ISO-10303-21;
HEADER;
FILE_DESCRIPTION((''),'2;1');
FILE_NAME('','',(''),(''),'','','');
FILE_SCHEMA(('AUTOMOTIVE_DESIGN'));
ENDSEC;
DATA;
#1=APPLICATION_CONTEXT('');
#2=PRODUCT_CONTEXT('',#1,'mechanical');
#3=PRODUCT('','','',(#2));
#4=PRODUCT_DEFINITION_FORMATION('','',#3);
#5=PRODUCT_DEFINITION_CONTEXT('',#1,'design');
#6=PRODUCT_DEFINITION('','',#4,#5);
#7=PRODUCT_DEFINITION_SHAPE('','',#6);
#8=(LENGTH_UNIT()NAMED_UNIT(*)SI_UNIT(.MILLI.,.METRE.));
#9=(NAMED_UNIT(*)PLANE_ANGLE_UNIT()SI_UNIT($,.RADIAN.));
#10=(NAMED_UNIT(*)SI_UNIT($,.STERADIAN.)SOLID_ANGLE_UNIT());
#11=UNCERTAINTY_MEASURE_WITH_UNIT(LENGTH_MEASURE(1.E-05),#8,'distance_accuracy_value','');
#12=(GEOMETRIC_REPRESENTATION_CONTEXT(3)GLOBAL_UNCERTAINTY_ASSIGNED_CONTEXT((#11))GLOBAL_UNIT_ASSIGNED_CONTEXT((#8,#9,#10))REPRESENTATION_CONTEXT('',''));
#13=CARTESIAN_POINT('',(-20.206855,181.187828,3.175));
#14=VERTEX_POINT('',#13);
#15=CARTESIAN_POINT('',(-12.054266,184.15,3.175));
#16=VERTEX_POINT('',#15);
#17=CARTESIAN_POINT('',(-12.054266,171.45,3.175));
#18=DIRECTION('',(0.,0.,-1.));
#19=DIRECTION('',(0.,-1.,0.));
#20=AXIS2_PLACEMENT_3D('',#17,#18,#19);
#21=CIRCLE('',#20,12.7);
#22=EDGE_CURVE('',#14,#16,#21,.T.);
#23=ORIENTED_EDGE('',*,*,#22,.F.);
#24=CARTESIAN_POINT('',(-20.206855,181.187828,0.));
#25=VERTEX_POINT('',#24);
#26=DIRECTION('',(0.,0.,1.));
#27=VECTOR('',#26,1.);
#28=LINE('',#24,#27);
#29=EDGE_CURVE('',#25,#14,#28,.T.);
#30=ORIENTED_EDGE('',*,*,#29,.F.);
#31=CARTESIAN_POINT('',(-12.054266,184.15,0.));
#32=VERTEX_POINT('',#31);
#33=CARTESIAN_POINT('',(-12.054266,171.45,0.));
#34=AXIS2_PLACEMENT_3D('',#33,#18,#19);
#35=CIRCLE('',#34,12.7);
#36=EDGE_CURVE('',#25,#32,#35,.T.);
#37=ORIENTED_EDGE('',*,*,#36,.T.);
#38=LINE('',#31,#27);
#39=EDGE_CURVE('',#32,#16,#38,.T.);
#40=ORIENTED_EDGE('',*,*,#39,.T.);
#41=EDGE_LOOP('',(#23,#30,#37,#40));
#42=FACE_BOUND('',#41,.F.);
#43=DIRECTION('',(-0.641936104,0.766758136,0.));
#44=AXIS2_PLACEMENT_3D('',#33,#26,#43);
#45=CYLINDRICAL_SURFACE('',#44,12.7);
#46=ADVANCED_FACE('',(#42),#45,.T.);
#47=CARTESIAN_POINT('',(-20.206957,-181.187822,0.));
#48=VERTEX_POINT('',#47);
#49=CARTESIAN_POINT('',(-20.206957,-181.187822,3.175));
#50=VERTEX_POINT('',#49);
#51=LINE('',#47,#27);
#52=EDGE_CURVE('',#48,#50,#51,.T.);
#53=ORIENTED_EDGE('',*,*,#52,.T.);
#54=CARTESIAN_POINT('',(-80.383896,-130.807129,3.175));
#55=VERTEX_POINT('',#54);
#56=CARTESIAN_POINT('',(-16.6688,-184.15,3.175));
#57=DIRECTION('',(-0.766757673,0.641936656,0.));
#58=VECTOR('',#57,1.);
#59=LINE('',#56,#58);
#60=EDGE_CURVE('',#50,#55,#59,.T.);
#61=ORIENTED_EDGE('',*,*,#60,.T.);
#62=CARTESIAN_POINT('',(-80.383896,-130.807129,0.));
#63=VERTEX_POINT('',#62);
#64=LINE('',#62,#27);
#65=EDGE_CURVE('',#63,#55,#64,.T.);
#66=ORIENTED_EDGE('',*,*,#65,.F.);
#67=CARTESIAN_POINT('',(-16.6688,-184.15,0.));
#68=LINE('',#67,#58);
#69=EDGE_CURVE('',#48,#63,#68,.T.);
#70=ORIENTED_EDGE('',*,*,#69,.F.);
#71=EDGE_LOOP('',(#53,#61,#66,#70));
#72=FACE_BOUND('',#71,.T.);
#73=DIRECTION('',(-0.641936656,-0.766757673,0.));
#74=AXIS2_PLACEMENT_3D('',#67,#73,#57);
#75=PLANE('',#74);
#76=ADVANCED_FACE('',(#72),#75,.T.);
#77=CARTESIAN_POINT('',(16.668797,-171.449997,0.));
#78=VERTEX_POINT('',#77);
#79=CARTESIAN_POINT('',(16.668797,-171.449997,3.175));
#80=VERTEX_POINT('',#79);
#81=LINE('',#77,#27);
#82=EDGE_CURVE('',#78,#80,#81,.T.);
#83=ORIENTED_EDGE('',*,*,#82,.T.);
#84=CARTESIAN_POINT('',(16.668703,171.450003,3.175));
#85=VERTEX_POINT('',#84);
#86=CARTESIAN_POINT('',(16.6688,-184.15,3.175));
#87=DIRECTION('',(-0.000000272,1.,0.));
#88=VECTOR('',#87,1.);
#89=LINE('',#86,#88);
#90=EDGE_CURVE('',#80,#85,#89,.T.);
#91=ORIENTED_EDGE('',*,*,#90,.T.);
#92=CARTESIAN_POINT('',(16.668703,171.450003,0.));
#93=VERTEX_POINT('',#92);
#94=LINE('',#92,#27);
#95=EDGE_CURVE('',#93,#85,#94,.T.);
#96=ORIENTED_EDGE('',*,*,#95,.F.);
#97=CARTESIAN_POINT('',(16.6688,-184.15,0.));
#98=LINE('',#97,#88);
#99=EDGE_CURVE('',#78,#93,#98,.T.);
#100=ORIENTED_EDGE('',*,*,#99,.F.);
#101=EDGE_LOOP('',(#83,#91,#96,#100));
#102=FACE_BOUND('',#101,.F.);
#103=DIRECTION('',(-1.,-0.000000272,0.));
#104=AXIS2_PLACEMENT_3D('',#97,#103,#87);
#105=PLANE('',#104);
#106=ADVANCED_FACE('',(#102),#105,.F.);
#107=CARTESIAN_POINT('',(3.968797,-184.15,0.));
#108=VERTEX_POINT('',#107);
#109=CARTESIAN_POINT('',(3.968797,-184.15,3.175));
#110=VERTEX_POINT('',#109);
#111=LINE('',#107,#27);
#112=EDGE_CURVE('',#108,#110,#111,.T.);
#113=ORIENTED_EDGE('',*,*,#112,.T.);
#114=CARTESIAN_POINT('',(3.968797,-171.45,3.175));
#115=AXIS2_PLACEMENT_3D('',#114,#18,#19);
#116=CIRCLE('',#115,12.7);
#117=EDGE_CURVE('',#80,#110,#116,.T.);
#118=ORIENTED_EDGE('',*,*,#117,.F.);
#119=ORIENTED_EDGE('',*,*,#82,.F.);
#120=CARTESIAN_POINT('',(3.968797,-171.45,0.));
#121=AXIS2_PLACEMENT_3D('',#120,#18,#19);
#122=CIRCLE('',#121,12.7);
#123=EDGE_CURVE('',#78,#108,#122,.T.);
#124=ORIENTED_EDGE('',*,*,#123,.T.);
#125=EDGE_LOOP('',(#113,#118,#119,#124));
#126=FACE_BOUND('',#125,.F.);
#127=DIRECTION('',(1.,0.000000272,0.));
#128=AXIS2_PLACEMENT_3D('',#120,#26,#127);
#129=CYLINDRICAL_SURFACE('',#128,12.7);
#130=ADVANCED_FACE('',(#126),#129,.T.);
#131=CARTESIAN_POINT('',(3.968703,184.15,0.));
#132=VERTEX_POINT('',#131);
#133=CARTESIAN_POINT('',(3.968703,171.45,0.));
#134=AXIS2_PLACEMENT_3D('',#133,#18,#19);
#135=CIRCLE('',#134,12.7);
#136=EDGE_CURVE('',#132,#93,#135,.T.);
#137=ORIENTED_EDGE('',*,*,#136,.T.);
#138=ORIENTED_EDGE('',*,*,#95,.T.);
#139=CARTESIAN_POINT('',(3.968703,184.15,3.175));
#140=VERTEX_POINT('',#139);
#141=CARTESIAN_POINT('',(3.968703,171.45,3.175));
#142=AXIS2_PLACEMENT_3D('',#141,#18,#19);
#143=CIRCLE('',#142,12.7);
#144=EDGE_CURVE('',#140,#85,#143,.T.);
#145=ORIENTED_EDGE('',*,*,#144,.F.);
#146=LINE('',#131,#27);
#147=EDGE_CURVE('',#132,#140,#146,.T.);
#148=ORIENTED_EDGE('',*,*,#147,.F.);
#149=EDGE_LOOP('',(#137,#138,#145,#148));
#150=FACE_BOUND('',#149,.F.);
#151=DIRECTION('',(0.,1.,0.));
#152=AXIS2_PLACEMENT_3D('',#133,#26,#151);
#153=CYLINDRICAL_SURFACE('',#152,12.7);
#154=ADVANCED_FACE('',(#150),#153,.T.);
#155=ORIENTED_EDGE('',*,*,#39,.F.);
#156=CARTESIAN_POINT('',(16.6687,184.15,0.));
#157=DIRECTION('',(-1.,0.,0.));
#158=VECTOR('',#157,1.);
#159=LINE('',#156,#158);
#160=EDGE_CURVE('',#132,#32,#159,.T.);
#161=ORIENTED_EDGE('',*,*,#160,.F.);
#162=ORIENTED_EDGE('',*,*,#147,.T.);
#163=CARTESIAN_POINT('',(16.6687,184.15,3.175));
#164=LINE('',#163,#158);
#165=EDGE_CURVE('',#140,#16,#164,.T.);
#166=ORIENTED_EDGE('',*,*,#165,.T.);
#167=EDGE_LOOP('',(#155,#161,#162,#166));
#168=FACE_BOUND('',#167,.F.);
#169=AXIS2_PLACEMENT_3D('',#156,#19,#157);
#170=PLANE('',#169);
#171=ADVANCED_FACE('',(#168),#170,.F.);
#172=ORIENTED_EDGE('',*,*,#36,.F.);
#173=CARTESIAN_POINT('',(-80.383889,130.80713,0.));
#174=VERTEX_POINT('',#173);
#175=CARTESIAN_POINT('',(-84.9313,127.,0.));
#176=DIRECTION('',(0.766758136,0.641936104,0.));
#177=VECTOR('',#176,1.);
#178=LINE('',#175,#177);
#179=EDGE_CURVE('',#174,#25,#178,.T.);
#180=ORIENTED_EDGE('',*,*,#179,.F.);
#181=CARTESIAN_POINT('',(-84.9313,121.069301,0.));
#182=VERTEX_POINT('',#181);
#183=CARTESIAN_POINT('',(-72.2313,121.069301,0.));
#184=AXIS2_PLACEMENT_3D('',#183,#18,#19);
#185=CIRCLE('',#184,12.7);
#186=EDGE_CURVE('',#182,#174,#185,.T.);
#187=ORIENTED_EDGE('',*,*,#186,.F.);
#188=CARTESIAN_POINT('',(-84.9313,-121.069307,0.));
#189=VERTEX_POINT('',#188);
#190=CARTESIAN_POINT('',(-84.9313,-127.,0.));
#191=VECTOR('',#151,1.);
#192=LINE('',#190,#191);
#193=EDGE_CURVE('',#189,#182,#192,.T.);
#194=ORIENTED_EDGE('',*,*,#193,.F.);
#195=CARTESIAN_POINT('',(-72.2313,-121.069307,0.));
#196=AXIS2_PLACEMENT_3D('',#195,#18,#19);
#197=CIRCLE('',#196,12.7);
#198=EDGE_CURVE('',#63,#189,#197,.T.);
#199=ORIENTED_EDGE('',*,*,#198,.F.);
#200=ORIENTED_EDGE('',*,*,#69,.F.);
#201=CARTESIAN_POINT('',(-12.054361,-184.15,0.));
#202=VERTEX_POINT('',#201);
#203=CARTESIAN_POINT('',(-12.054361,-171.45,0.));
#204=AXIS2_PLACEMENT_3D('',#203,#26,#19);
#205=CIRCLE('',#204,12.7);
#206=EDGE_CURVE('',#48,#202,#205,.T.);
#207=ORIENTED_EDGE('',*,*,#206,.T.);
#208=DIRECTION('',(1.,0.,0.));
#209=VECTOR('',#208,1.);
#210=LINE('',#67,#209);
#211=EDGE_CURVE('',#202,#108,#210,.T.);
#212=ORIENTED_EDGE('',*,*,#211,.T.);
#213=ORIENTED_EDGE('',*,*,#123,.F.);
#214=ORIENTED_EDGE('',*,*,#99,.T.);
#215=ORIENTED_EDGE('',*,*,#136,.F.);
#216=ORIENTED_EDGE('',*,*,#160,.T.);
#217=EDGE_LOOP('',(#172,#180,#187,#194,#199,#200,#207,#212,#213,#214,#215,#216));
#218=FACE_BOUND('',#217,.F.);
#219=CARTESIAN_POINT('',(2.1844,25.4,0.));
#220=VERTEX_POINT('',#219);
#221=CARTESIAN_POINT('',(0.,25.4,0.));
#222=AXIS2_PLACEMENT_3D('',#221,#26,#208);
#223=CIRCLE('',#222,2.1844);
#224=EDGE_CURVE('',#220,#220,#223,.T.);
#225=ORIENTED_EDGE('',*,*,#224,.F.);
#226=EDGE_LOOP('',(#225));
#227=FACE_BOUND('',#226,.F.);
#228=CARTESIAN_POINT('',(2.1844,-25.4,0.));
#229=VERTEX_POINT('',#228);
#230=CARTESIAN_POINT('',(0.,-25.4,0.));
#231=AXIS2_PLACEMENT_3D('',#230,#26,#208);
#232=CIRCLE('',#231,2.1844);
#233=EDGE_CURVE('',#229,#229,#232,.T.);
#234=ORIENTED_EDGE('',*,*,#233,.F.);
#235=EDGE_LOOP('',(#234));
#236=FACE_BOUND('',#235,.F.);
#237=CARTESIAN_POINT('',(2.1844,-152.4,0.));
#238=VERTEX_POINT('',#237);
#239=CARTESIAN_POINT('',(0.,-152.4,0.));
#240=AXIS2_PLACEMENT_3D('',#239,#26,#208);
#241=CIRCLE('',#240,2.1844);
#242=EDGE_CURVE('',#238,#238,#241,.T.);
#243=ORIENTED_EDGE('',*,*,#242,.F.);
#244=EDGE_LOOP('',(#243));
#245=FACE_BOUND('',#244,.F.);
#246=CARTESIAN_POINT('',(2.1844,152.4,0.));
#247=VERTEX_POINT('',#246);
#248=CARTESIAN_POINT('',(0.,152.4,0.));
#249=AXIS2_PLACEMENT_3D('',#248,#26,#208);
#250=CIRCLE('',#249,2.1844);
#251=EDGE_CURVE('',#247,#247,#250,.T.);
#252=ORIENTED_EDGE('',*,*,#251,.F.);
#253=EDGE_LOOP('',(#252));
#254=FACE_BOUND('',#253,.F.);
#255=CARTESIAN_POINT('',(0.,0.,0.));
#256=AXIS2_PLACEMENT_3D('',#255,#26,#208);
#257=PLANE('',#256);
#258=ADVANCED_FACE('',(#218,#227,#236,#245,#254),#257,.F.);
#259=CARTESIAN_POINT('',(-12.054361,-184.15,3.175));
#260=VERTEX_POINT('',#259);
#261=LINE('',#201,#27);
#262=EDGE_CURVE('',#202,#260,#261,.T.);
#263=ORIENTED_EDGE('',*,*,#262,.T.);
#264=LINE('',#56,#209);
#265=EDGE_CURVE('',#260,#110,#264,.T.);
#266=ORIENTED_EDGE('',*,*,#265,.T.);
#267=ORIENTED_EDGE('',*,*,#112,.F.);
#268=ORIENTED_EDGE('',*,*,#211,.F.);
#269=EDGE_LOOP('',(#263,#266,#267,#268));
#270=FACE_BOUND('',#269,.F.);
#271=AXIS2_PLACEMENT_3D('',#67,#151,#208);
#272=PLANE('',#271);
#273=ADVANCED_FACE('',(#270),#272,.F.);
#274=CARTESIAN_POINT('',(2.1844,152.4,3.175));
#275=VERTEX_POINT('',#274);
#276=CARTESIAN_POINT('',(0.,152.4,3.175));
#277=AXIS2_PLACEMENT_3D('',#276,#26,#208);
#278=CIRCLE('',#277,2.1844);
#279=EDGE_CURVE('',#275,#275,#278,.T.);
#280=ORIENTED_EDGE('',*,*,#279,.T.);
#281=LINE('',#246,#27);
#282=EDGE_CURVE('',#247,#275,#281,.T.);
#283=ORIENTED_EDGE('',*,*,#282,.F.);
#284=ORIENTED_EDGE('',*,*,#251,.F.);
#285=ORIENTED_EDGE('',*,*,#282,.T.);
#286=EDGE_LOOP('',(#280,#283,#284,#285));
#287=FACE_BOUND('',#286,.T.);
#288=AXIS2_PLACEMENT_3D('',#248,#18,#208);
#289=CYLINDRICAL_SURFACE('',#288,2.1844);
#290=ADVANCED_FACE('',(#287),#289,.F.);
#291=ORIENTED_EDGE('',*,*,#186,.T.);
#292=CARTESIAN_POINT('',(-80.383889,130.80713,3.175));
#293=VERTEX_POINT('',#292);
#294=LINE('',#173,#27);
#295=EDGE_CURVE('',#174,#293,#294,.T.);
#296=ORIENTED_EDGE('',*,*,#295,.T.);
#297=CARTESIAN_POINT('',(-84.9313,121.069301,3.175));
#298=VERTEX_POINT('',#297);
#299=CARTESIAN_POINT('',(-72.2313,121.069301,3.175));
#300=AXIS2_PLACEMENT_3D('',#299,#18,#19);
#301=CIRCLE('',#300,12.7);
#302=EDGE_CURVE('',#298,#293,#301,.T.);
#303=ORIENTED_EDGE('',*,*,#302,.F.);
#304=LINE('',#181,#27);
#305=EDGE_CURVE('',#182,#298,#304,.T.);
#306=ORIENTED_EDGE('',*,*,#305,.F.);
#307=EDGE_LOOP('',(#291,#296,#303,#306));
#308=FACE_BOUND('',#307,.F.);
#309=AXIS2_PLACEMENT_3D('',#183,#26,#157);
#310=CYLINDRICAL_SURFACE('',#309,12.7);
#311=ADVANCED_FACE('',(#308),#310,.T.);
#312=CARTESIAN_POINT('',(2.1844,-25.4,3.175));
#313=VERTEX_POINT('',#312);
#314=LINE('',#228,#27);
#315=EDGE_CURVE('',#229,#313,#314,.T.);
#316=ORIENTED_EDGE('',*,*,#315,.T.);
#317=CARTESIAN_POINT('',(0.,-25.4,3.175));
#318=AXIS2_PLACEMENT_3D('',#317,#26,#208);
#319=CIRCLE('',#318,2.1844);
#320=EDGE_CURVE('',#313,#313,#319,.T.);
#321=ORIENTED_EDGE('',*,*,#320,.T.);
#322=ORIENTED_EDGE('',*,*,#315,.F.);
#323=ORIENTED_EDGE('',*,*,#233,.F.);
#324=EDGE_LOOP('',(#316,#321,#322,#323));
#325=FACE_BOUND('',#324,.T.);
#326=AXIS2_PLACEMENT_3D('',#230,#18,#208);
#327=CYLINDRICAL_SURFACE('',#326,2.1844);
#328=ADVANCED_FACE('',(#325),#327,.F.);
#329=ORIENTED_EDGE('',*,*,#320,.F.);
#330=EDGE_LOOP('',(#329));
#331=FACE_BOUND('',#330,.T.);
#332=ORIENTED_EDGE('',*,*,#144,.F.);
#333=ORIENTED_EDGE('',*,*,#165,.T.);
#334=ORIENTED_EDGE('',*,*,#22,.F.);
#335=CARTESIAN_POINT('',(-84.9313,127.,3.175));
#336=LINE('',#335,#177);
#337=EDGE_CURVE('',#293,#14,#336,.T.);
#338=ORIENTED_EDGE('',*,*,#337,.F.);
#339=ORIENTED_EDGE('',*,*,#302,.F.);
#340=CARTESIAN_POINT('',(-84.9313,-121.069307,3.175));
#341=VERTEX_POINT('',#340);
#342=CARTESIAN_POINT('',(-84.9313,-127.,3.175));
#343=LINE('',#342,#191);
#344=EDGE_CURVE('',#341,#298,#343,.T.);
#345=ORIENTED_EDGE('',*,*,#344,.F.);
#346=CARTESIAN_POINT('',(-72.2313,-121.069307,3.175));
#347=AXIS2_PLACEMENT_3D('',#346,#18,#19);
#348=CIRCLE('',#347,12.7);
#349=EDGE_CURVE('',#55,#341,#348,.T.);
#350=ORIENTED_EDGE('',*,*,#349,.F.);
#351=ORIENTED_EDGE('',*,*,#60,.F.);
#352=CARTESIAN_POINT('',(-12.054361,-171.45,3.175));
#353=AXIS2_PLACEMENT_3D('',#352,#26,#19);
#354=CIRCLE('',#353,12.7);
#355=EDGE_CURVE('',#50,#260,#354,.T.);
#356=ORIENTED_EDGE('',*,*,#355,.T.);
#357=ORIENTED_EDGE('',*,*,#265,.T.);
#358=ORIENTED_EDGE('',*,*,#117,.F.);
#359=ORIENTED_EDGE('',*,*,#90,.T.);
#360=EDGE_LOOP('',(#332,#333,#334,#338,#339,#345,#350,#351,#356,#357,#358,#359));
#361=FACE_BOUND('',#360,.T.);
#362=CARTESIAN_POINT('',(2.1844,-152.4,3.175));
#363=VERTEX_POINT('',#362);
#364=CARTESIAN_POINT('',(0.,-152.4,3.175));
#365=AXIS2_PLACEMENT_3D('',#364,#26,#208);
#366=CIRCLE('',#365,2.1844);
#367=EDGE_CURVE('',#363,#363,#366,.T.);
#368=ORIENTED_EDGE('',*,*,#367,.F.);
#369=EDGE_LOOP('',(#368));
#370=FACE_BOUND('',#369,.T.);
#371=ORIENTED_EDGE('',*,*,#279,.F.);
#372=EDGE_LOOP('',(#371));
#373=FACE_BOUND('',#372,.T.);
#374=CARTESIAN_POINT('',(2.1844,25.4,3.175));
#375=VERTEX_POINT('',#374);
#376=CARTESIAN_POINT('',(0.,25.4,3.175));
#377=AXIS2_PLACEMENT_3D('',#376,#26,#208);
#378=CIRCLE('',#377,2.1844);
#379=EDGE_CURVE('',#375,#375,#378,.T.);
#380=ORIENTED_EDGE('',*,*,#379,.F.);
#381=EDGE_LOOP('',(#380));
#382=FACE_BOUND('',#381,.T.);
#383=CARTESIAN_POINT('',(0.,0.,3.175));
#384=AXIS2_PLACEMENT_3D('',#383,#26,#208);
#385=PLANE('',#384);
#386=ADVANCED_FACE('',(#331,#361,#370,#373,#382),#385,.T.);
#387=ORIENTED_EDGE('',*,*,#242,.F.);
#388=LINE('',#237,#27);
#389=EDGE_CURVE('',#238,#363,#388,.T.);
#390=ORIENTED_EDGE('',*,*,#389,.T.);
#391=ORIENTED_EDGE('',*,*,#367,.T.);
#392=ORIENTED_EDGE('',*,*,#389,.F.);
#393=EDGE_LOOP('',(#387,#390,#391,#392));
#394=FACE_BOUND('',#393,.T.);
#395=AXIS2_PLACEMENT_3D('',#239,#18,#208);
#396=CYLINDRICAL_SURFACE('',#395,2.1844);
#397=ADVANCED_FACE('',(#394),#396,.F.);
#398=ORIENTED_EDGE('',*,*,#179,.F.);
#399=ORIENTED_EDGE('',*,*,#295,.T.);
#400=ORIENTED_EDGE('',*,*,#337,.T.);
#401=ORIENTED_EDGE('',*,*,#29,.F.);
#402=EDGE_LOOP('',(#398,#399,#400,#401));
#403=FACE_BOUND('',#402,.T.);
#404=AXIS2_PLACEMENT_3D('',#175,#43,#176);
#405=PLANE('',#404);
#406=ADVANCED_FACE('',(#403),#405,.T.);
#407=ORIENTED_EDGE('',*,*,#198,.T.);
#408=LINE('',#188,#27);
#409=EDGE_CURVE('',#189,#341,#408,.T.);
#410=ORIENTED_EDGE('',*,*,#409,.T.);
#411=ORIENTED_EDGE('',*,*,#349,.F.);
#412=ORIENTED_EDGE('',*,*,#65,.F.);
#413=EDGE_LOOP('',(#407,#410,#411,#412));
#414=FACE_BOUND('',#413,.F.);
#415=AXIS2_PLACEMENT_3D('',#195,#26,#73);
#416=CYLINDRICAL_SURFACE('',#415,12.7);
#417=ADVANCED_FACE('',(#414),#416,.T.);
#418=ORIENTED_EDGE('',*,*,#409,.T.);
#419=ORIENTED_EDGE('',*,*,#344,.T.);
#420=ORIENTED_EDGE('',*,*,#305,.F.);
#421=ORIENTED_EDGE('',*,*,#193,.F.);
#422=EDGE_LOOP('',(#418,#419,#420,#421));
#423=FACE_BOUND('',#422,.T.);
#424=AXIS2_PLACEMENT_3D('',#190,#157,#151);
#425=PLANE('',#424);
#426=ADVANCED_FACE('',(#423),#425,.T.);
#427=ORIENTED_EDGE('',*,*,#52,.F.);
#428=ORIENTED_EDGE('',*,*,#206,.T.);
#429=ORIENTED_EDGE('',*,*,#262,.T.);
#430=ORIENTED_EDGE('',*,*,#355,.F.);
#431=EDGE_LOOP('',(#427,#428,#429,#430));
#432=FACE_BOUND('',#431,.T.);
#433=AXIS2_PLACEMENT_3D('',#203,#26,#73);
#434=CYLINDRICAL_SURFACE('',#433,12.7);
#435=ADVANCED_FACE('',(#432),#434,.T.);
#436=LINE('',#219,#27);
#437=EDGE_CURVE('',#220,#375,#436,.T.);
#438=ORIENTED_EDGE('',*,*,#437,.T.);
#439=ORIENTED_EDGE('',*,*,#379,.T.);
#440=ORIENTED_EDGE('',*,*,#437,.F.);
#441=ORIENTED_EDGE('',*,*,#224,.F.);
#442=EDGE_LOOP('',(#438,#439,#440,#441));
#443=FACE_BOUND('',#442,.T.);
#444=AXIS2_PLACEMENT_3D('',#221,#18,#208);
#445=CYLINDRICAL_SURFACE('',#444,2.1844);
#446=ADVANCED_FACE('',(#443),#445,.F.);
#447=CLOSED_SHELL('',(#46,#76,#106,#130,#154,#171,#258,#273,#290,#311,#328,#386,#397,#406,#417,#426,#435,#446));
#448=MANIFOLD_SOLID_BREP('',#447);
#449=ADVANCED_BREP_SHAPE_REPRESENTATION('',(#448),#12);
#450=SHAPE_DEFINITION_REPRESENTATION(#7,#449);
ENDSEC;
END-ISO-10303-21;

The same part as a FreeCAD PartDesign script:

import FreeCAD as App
import Part
import Sketcher
Q = App.Units.Quantity


def edges_at(feature, points):
    """Names of the edges that pass closest to the given points."""
    edges = feature.Shape.Edges
    near = lambda p: min(range(len(edges)), key=lambda i: edges[i].distToShape(Part.Vertex(*p))[0])
    return sorted({f"Edge{near(p) + 1}" for p in points})


def add_polygon(sketch, points):
    """Adds a closed chain of lines whose ends are joined by coincident constraints."""
    first, n = sketch.GeometryCount, len(points)
    for a, b in zip(points, points[1:] + points[:1]):
        sketch.addGeometry(Part.LineSegment(App.Vector(*a, 0), App.Vector(*b, 0)), False)
    for i in range(n):
        sketch.addConstraint(Sketcher.Constraint("Coincident", first + i, 2, first + (i + 1) % n, 1))

doc = App.newDocument("Part")
body = doc.addObject("PartDesign::Body", "Body")

# Sketch on XY plane
sketch1 = body.newObject("Sketcher::SketchObject", "Sketch")
sketch1.AttachmentSupport = (doc.getObject("XY_Plane"), [""])
sketch1.MapMode = "FlatFace"
add_polygon(sketch1, [(-84.9, -127), (-16.7, -184.2), (16.7, -184.2), (16.7, 184.2), (-16.7, 184.2), (-84.9, 127)])  # lines 0-5
sketch1.addGeometry(Part.Circle(App.Vector(0, -152.4, 0), App.Vector(0, 0, 1), 2.2), False)  # 6
sketch1.addGeometry(Part.Circle(App.Vector(0, -25.4, 0), App.Vector(0, 0, 1), 2.2), False)  # 7
sketch1.addGeometry(Part.Circle(App.Vector(0, 25.4, 0), App.Vector(0, 0, 1), 2.2), False)  # 8
sketch1.addGeometry(Part.Circle(App.Vector(0, 152.4, 0), App.Vector(0, 0, 1), 2.2), False)  # 9
sketch1.addConstraint(Sketcher.Constraint("Horizontal", 1))
sketch1.addConstraint(Sketcher.Constraint("Vertical", 2))
sketch1.addConstraint(Sketcher.Constraint("Horizontal", 3))
sketch1.addConstraint(Sketcher.Constraint("Vertical", 5))
sketch1.addConstraint(Sketcher.Constraint("Equal", 6, 7))
sketch1.addConstraint(Sketcher.Constraint("Equal", 7, 8))
sketch1.addConstraint(Sketcher.Constraint("Equal", 8, 9))
sketch1.addConstraint(Sketcher.Constraint("Symmetric", 7, 3, 8, 3, -1, 1))
sketch1.addConstraint(Sketcher.Constraint("Symmetric", 6, 3, 9, 3, -1, 1))
sketch1.addConstraint(Sketcher.Constraint("Symmetric", 0, 2, 2, 2, -1, 1))
sketch1.addConstraint(Sketcher.Constraint("PointOnObject", 6, 3, -2))
sketch1.addConstraint(Sketcher.Constraint("PointOnObject", 7, 3, -2))
sketch1.addConstraint(Sketcher.Constraint("Vertical", 0, 2, 3, 2))
sketch1.addConstraint(Sketcher.Constraint("Equal", 0, 4))
sketch1.addConstraint(Sketcher.Constraint("DistanceY", 5, 2, 5, 1, Q("10 in")))
sketch1.addConstraint(Sketcher.Constraint("DistanceX", 4, 2, 2, 2, Q("4 in")))
sketch1.addConstraint(Sketcher.Constraint("DistanceY", 8, 3, 4, 2, Q("4 in")))
sketch1.addConstraint(Sketcher.Constraint("Diameter", 6, Q("0.172 in")))
sketch1.addConstraint(Sketcher.Constraint("DistanceY", 2, 1, 2, 2, Q("14.5 in")))
sketch1.addConstraint(Sketcher.Constraint("DistanceY", 6, 3, -1, 1, Q("6 in")))
sketch1.addConstraint(Sketcher.Constraint("DistanceX", 1, 1, 1, 2, Q("1.3125 in")))
pad1 = body.newObject("PartDesign::Pad", "Pad")
pad1.Profile = sketch1
pad1.Length = Q("0.125 in")
doc.recompute()

fillet = body.newObject("PartDesign::Fillet", "Fillet")
fillet.Base = (pad1, edges_at(pad1, [
    (-84.931, -127, 1.587),
    (-16.669, -184.15, 1.587),
    (16.669, -184.15, 1.587),
    (-84.931, 127, 1.587),
    (-16.669, 184.15, 1.587),
    (16.669, 184.15, 1.587),
]))
fillet.Radius = Q("0.5 in")

doc.recompute()
